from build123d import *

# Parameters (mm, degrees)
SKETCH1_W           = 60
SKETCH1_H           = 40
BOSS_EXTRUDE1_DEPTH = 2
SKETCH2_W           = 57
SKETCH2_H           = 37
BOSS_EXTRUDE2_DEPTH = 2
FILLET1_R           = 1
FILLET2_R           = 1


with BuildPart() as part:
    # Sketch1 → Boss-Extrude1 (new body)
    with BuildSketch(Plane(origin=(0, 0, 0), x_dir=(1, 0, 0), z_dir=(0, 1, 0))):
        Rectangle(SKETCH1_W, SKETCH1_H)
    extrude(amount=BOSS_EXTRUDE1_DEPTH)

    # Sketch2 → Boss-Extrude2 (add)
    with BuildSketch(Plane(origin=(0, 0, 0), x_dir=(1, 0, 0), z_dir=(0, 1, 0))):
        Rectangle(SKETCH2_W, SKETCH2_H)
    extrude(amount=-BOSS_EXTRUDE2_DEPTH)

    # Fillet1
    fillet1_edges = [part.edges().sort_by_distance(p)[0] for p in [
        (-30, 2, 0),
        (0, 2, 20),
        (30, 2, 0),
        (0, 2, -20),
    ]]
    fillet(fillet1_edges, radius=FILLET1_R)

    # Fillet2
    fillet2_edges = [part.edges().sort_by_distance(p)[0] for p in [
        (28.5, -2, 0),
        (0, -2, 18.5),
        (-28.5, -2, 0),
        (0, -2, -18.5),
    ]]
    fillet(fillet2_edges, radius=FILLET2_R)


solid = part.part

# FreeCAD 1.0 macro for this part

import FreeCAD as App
import Part
import Sketcher

V = App.Vector


def edges_at(feature, points):
    """Names of the edges that pass closest to the given points."""
    edges = feature.Shape.Edges
    near = lambda p: min(range(len(edges)), key=lambda i: edges[i].distToShape(Part.Vertex(*p))[0])
    return sorted({f"Edge{near(p) + 1}" for p in points})

doc = App.newDocument("Part")
body = doc.addObject("PartDesign::Body", "Body")

sketch1 = doc.addObject("Sketcher::SketchObject", "Sketch")
body.addObject(sketch1)
sketch1.AttachmentSupport = (doc.XZ_Plane, [""])
sketch1.MapMode = "FlatFace"
sketch1.addGeometry([
    Part.LineSegment(V(-30, -20, 0), V(-30, 20, 0)),
    Part.LineSegment(V(-30, 20, 0), V(30, 20, 0)),
    Part.LineSegment(V(30, 20, 0), V(30, -20, 0)),
    Part.LineSegment(V(30, -20, 0), V(-30, -20, 0)),
], False)
sketch1.addConstraint([
    Sketcher.Constraint("Coincident", 0, 2, 1, 1),
    Sketcher.Constraint("Coincident", 1, 2, 2, 1),
    Sketcher.Constraint("Coincident", 2, 2, 3, 1),
    Sketcher.Constraint("Coincident", 3, 2, 0, 1),
    Sketcher.Constraint("Vertical", 0),
    Sketcher.Constraint("Horizontal", 1),
    Sketcher.Constraint("Vertical", 2),
    Sketcher.Constraint("Horizontal", 3),
    Sketcher.Constraint("Symmetric", 0, 2, 2, 2, -1, 1),
    Sketcher.Constraint("DistanceX", 1, 1, 1, 2, 60.0),
    Sketcher.Constraint("DistanceY", 0, 1, 0, 2, 40.0),
])
pad1 = doc.addObject("PartDesign::Pad", "Pad")
body.addObject(pad1)
pad1.Profile = sketch1
pad1.Length = 2
pad1.Reversed = True

sketch2 = doc.addObject("Sketcher::SketchObject", "Sketch001")
body.addObject(sketch2)
sketch2.AttachmentSupport = (doc.XZ_Plane, [""])
sketch2.MapMode = "FlatFace"
sketch2.addGeometry([
    Part.LineSegment(V(-28, -18, 0), V(-28, 18, 0)),
    Part.LineSegment(V(-28, 18, 0), V(28, 18, 0)),
    Part.LineSegment(V(28, 18, 0), V(28, -18, 0)),
    Part.LineSegment(V(28, -18, 0), V(-28, -18, 0)),
], False)
sketch2.addConstraint([
    Sketcher.Constraint("Coincident", 0, 2, 1, 1),
    Sketcher.Constraint("Coincident", 1, 2, 2, 1),
    Sketcher.Constraint("Coincident", 2, 2, 3, 1),
    Sketcher.Constraint("Coincident", 3, 2, 0, 1),
    Sketcher.Constraint("Vertical", 0),
    Sketcher.Constraint("Horizontal", 1),
    Sketcher.Constraint("Vertical", 2),
    Sketcher.Constraint("Horizontal", 3),
    Sketcher.Constraint("Symmetric", 0, 2, 2, 2, -1, 1),
    Sketcher.Constraint("DistanceX", 1, 1, 1, 2, 57.0),
    Sketcher.Constraint("DistanceY", 0, 1, 0, 2, 37.0),
])
pad2 = doc.addObject("PartDesign::Pad", "Pad001")
body.addObject(pad2)
pad2.Profile = sketch2
pad2.Length = 2
doc.recompute()

fillet = doc.addObject("PartDesign::Fillet", "Fillet")
body.addObject(fillet)
fillet.Base = (pad2, edges_at(pad2, [
    (-30, 2, 0),
    (0, 2, 20),
    (30, 2, 0),
    (0, 2, -20),
]))
fillet.Radius = 1
doc.recompute()

fillet2 = doc.addObject("PartDesign::Fillet", "Fillet001")
body.addObject(fillet2)
fillet2.Base = (fillet, edges_at(fillet, [
    (28.5, -2, 0),
    (0, -2, 18.5),
    (-28.5, -2, 0),
    (0, -2, -18.5),
]))
fillet2.Radius = 1

doc.recompute()
